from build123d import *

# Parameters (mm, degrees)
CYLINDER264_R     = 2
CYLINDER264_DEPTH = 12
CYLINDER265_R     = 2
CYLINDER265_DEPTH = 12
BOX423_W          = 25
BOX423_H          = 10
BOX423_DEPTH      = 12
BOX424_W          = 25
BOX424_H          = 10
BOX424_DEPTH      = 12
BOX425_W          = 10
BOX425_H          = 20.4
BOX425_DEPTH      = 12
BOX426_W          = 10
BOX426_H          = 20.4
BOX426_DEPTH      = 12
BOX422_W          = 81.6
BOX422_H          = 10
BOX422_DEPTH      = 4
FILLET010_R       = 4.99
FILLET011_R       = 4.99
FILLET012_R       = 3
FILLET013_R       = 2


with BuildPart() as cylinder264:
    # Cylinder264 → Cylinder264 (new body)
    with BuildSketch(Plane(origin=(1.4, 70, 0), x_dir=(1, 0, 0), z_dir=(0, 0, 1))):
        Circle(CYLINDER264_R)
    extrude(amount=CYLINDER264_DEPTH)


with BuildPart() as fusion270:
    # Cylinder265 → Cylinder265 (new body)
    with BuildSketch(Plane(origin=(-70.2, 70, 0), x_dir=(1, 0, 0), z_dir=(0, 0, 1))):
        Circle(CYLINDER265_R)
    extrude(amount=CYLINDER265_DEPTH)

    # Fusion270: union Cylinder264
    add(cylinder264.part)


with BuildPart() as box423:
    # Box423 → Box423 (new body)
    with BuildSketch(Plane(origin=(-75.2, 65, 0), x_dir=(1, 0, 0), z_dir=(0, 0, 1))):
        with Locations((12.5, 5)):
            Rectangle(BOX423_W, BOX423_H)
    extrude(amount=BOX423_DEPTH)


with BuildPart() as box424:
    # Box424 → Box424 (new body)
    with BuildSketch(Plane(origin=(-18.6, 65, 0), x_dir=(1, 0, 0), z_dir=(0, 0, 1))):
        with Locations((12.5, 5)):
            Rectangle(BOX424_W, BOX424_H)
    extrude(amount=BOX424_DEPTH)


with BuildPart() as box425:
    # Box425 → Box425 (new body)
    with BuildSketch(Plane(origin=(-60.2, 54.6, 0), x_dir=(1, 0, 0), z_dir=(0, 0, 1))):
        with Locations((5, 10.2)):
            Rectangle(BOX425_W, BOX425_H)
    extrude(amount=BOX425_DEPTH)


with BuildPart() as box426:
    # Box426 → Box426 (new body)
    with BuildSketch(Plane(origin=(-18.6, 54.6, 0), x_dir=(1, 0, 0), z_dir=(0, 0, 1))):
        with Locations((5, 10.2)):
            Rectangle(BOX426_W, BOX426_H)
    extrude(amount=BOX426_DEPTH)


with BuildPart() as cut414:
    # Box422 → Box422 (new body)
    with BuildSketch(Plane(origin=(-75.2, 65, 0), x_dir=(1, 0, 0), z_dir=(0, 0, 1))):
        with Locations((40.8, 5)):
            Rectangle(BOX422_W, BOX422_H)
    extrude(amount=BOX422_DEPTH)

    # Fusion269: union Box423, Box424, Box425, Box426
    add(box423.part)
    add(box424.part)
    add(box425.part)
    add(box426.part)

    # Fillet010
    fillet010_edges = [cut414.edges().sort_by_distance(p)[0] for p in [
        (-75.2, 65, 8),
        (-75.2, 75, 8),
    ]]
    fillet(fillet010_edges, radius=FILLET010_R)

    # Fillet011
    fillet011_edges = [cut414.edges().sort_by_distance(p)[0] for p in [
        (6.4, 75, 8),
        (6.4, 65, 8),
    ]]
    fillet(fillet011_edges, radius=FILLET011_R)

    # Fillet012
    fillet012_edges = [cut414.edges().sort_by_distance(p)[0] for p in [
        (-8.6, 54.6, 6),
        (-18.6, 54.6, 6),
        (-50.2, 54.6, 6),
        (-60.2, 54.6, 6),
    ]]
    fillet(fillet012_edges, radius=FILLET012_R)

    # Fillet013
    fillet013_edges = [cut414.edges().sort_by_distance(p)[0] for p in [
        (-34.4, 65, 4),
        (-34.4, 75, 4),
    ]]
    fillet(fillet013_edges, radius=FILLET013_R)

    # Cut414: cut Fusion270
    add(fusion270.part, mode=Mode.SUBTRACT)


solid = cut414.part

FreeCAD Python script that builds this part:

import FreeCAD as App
import Part
import Sketcher


def edges_at(feature, points):
    """Names of the edges that pass closest to the given points."""
    edges = feature.Shape.Edges
    near = lambda p: min(range(len(edges)), key=lambda i: edges[i].distToShape(Part.Vertex(*p))[0])
    return sorted({f"Edge{near(p) + 1}" for p in points})

doc = App.newDocument("Part")
body = doc.addObject("PartDesign::Body", "Body")

sketch1 = doc.addObject("Sketcher::SketchObject", "Sketch")
body.addObject(sketch1)
sketch1.AttachmentSupport = (doc.XY_Plane, [""])
sketch1.MapMode = "FlatFace"
sketch1.addGeometry(Part.Circle(App.Vector(1.4, 70, 0), App.Vector(0, 0, 1), 2), False)
sketch1.addConstraint([
    Sketcher.Constraint("Diameter", 0, 4.0),
    Sketcher.Constraint("DistanceY", -1, 1, 0, 3, 70.0),
    Sketcher.Constraint("DistanceX", -1, 1, 0, 3, 1.4),
])
pad1 = doc.addObject("PartDesign::Pad", "Pad")
body.addObject(pad1)
pad1.Profile = sketch1
pad1.Length = 12
body2 = doc.addObject("PartDesign::Body", "Body001")
body2.AllowCompound = True

sketch2 = doc.addObject("Sketcher::SketchObject", "Sketch001")
body2.addObject(sketch2)
sketch2.AttachmentSupport = (doc.getObject("XY_Plane001"), [""])
sketch2.MapMode = "FlatFace"
sketch2.addGeometry(Part.Circle(App.Vector(-70.2, 70, 0), App.Vector(0, 0, 1), 2), False)
sketch2.addConstraint([
    Sketcher.Constraint("Diameter", 0, 4.0),
    Sketcher.Constraint("DistanceY", -1, 1, 0, 3, 70.0),
    Sketcher.Constraint("DistanceX", 0, 3, -1, 1, 70.2),
])
pad2 = doc.addObject("PartDesign::Pad", "Pad001")
body2.addObject(pad2)
pad2.Profile = sketch2
pad2.Length = 12
doc.recompute()

boolean = doc.addObject("PartDesign::Boolean", "Boolean")
body2.addObject(boolean)
boolean.Type = "Fuse"
boolean.addObjects([body])
body3 = doc.addObject("PartDesign::Body", "Body002")

sketch3 = doc.addObject("Sketcher::SketchObject", "Sketch002")
body3.addObject(sketch3)
sketch3.AttachmentSupport = (doc.getObject("XY_Plane002"), [""])
sketch3.MapMode = "FlatFace"
sketch3.addGeometry([
    Part.LineSegment(App.Vector(-75, 75, 0), App.Vector(-75, 65, 0)),
    Part.LineSegment(App.Vector(-75, 65, 0), App.Vector(-50, 65, 0)),
    Part.LineSegment(App.Vector(-50, 65, 0), App.Vector(-50, 75, 0)),
    Part.LineSegment(App.Vector(-50, 75, 0), App.Vector(-75, 75, 0)),
], False)
sketch3.addConstraint([
    Sketcher.Constraint("Coincident", 0, 2, 1, 1),
    Sketcher.Constraint("Coincident", 1, 2, 2, 1),
    Sketcher.Constraint("Coincident", 2, 2, 3, 1),
    Sketcher.Constraint("Coincident", 3, 2, 0, 1),
    Sketcher.Constraint("Vertical", 0),
    Sketcher.Constraint("Horizontal", 1),
    Sketcher.Constraint("Vertical", 2),
    Sketcher.Constraint("Horizontal", 3),
    Sketcher.Constraint("DistanceX", 1, 1, 1, 2, 25.0),
    Sketcher.Constraint("DistanceY", 0, 2, 0, 1, 10.0),
    Sketcher.Constraint("DistanceY", -1, 1, 0, 2, 65.0),
    Sketcher.Constraint("DistanceX", 0, 2, -1, 1, 75.2),
])
pad3 = doc.addObject("PartDesign::Pad", "Pad002")
body3.addObject(pad3)
pad3.Profile = sketch3
pad3.Length = 12
body4 = doc.addObject("PartDesign::Body", "Body003")

sketch4 = doc.addObject("Sketcher::SketchObject", "Sketch003")
body4.addObject(sketch4)
sketch4.AttachmentSupport = (doc.getObject("XY_Plane003"), [""])
sketch4.MapMode = "FlatFace"
sketch4.addGeometry([
    Part.LineSegment(App.Vector(-19, 75, 0), App.Vector(-19, 65, 0)),
    Part.LineSegment(App.Vector(-19, 65, 0), App.Vector(6, 65, 0)),
    Part.LineSegment(App.Vector(6, 65, 0), App.Vector(6, 75, 0)),
    Part.LineSegment(App.Vector(6, 75, 0), App.Vector(-19, 75, 0)),
], False)
sketch4.addConstraint([
    Sketcher.Constraint("Coincident", 0, 2, 1, 1),
    Sketcher.Constraint("Coincident", 1, 2, 2, 1),
    Sketcher.Constraint("Coincident", 2, 2, 3, 1),
    Sketcher.Constraint("Coincident", 3, 2, 0, 1),
    Sketcher.Constraint("Vertical", 0),
    Sketcher.Constraint("Horizontal", 1),
    Sketcher.Constraint("Vertical", 2),
    Sketcher.Constraint("Horizontal", 3),
    Sketcher.Constraint("DistanceX", 1, 1, 1, 2, 25.0),
    Sketcher.Constraint("DistanceY", 0, 2, 0, 1, 10.0),
    Sketcher.Constraint("DistanceY", -1, 1, 0, 2, 65.0),
    Sketcher.Constraint("DistanceX", 0, 2, -1, 1, 18.6),
])
pad4 = doc.addObject("PartDesign::Pad", "Pad003")
body4.addObject(pad4)
pad4.Profile = sketch4
pad4.Length = 12
body5 = doc.addObject("PartDesign::Body", "Body004")

sketch5 = doc.addObject("Sketcher::SketchObject", "Sketch004")
body5.addObject(sketch5)
sketch5.AttachmentSupport = (doc.getObject("XY_Plane004"), [""])
sketch5.MapMode = "FlatFace"
sketch5.addGeometry([
    Part.LineSegment(App.Vector(-60, 75, 0), App.Vector(-60, 55, 0)),
    Part.LineSegment(App.Vector(-60, 55, 0), App.Vector(-50, 55, 0)),
    Part.LineSegment(App.Vector(-50, 55, 0), App.Vector(-50, 75, 0)),
    Part.LineSegment(App.Vector(-50, 75, 0), App.Vector(-60, 75, 0)),
], False)
sketch5.addConstraint([
    Sketcher.Constraint("Coincident", 0, 2, 1, 1),
    Sketcher.Constraint("Coincident", 1, 2, 2, 1),
    Sketcher.Constraint("Coincident", 2, 2, 3, 1),
    Sketcher.Constraint("Coincident", 3, 2, 0, 1),
    Sketcher.Constraint("Vertical", 0),
    Sketcher.Constraint("Horizontal", 1),
    Sketcher.Constraint("Vertical", 2),
    Sketcher.Constraint("Horizontal", 3),
    Sketcher.Constraint("DistanceX", 1, 1, 1, 2, 10.0),
    Sketcher.Constraint("DistanceY", 0, 2, 0, 1, 20.4),
    Sketcher.Constraint("DistanceY", -1, 1, 2, 2, 75.0),
    Sketcher.Constraint("DistanceX", 0, 2, -1, 1, 60.2),
])
pad5 = doc.addObject("PartDesign::Pad", "Pad004")
body5.addObject(pad5)
pad5.Profile = sketch5
pad5.Length = 12
body6 = doc.addObject("PartDesign::Body", "Body005")

sketch6 = doc.addObject("Sketcher::SketchObject", "Sketch005")
body6.addObject(sketch6)
sketch6.AttachmentSupport = (doc.getObject("XY_Plane005"), [""])
sketch6.MapMode = "FlatFace"
sketch6.addGeometry([
    Part.LineSegment(App.Vector(-19, 75, 0), App.Vector(-19, 55, 0)),
    Part.LineSegment(App.Vector(-19, 55, 0), App.Vector(-9, 55, 0)),
    Part.LineSegment(App.Vector(-9, 55, 0), App.Vector(-9, 75, 0)),
    Part.LineSegment(App.Vector(-9, 75, 0), App.Vector(-19, 75, 0)),
], False)
sketch6.addConstraint([
    Sketcher.Constraint("Coincident", 0, 2, 1, 1),
    Sketcher.Constraint("Coincident", 1, 2, 2, 1),
    Sketcher.Constraint("Coincident", 2, 2, 3, 1),
    Sketcher.Constraint("Coincident", 3, 2, 0, 1),
    Sketcher.Constraint("Vertical", 0),
    Sketcher.Constraint("Horizontal", 1),
    Sketcher.Constraint("Vertical", 2),
    Sketcher.Constraint("Horizontal", 3),
    Sketcher.Constraint("DistanceX", 1, 1, 1, 2, 10.0),
    Sketcher.Constraint("DistanceY", 0, 2, 0, 1, 20.4),
    Sketcher.Constraint("DistanceY", -1, 1, 2, 2, 75.0),
    Sketcher.Constraint("DistanceX", 0, 2, -1, 1, 18.6),
])
pad6 = doc.addObject("PartDesign::Pad", "Pad005")
body6.addObject(pad6)
pad6.Profile = sketch6
pad6.Length = 12
body7 = doc.addObject("PartDesign::Body", "Body006")

sketch7 = doc.addObject("Sketcher::SketchObject", "Sketch006")
body7.addObject(sketch7)
sketch7.AttachmentSupport = (doc.getObject("XY_Plane006"), [""])
sketch7.MapMode = "FlatFace"
sketch7.addGeometry([
    Part.LineSegment(App.Vector(-75, 75, 0), App.Vector(-75, 65, 0)),
    Part.LineSegment(App.Vector(-75, 65, 0), App.Vector(6, 65, 0)),
    Part.LineSegment(App.Vector(6, 65, 0), App.Vector(6, 75, 0)),
    Part.LineSegment(App.Vector(6, 75, 0), App.Vector(-75, 75, 0)),
], False)
sketch7.addConstraint([
    Sketcher.Constraint("Coincident", 0, 2, 1, 1),
    Sketcher.Constraint("Coincident", 1, 2, 2, 1),
    Sketcher.Constraint("Coincident", 2, 2, 3, 1),
    Sketcher.Constraint("Coincident", 3, 2, 0, 1),
    Sketcher.Constraint("Vertical", 0),
    Sketcher.Constraint("Horizontal", 1),
    Sketcher.Constraint("Vertical", 2),
    Sketcher.Constraint("Horizontal", 3),
    Sketcher.Constraint("DistanceY", 0, 2, 0, 1, 10.0),
    Sketcher.Constraint("DistanceX", 1, 1, 1, 2, 81.6),
    Sketcher.Constraint("DistanceY", -1, 1, 0, 2, 65.0),
    Sketcher.Constraint("DistanceX", 0, 2, -1, 1, 75.2),
])
pad7 = doc.addObject("PartDesign::Pad", "Pad006")
body7.addObject(pad7)
pad7.Profile = sketch7
pad7.Length = 4
doc.recompute()

boolean2 = doc.addObject("PartDesign::Boolean", "Boolean001")
body7.addObject(boolean2)
boolean2.Type = "Fuse"
boolean2.addObjects([body3])
doc.recompute()

boolean3 = doc.addObject("PartDesign::Boolean", "Boolean002")
body7.addObject(boolean3)
boolean3.Type = "Fuse"
boolean3.addObjects([body4])
doc.recompute()

boolean4 = doc.addObject("PartDesign::Boolean", "Boolean003")
body7.addObject(boolean4)
boolean4.Type = "Fuse"
boolean4.addObjects([body5])
doc.recompute()

boolean5 = doc.addObject("PartDesign::Boolean", "Boolean004")
body7.addObject(boolean5)
boolean5.Type = "Fuse"
boolean5.addObjects([body6])
doc.recompute()

fillet = doc.addObject("PartDesign::Fillet", "Fillet")
body7.addObject(fillet)
fillet.Base = (boolean5, edges_at(boolean5, [(-75.2, 65, 6), (-75.2, 75, 6)]))
fillet.Radius = 4.99
doc.recompute()

fillet2 = doc.addObject("PartDesign::Fillet", "Fillet001")
body7.addObject(fillet2)
fillet2.Base = (fillet, edges_at(fillet, [(6.4, 75, 6), (6.4, 65, 6)]))
fillet2.Radius = 4.99
doc.recompute()

fillet3 = doc.addObject("PartDesign::Fillet", "Fillet002")
body7.addObject(fillet3)
fillet3.Base = (fillet2, edges_at(fillet2, [
    (-8.6, 54.6, 6),
    (-18.6, 54.6, 6),
    (-50.2, 54.6, 6),
    (-60.2, 54.6, 6),
]))
fillet3.Radius = 3
doc.recompute()

fillet4 = doc.addObject("PartDesign::Fillet", "Fillet003")
body7.addObject(fillet4)
fillet4.Base = (fillet3, edges_at(fillet3, [(-34.4, 65, 4), (-34.4, 75, 4)]))
fillet4.Radius = 2
doc.recompute()

boolean6 = doc.addObject("PartDesign::Boolean", "Boolean005")
body7.addObject(boolean6)
boolean6.Type = "Cut"
boolean6.addObjects([body2])

doc.recompute()
